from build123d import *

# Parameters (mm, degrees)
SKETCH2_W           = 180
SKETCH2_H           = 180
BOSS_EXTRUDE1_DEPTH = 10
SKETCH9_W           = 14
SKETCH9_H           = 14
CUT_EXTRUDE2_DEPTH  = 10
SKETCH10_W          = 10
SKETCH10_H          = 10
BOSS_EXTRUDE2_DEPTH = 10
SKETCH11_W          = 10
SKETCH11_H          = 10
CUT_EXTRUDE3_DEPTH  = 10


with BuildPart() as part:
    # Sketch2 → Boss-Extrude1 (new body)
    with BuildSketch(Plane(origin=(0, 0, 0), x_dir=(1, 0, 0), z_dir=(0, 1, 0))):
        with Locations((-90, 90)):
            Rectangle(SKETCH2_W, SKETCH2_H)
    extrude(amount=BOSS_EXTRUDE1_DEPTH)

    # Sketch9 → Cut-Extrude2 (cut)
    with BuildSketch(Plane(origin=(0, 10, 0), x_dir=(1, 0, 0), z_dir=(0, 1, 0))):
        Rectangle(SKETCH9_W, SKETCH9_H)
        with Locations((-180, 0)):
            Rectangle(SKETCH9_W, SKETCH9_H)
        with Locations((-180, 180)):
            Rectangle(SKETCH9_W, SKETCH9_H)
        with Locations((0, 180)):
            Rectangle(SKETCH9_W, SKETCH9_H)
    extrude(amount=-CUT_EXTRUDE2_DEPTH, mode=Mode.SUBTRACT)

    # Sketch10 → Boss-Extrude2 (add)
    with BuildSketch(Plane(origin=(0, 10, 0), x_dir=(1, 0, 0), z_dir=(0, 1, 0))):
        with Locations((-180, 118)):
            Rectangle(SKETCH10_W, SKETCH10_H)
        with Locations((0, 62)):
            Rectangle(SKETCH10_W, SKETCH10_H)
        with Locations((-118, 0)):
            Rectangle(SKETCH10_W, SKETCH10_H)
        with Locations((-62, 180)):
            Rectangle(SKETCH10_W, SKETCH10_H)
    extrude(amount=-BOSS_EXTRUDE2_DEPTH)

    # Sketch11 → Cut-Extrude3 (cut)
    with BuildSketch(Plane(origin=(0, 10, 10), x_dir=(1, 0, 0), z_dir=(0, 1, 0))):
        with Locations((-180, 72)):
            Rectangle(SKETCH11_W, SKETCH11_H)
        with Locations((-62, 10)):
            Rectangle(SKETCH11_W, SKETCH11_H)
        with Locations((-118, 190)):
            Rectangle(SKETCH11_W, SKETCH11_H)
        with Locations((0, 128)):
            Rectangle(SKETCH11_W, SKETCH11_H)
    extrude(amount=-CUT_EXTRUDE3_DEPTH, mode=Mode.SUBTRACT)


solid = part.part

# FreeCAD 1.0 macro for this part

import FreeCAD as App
import Part
import Sketcher

V = App.Vector

doc = App.newDocument("Part")
body = doc.addObject("PartDesign::Body", "Body")

# Sketch on XZ plane
sketch1 = body.newObject("Sketcher::SketchObject", "Sketch")
sketch1.AttachmentSupport = (doc.getObject("XZ_Plane"), [""])
sketch1.MapMode = "FlatFace"
sketch1.addGeometry(Part.LineSegment(V(-180, -180, 0), V(-180, 0, 0)), False)
sketch1.addGeometry(Part.LineSegment(V(-180, 0, 0), V(0, 0, 0)), False)
sketch1.addGeometry(Part.LineSegment(V(0, 0, 0), V(0, -180, 0)), False)
sketch1.addGeometry(Part.LineSegment(V(0, -180, 0), V(-180, -180, 0)), False)
sketch1.addConstraint(Sketcher.Constraint("Coincident", 0, 2, 1, 1))
sketch1.addConstraint(Sketcher.Constraint("Coincident", 1, 2, 2, 1))
sketch1.addConstraint(Sketcher.Constraint("Coincident", 2, 2, 3, 1))
sketch1.addConstraint(Sketcher.Constraint("Coincident", 3, 2, 0, 1))
sketch1.addConstraint(Sketcher.Constraint("Vertical", 0))
sketch1.addConstraint(Sketcher.Constraint("Horizontal", 1))
sketch1.addConstraint(Sketcher.Constraint("Vertical", 2))
sketch1.addConstraint(Sketcher.Constraint("Horizontal", 3))
sketch1.addConstraint(Sketcher.Constraint("Coincident", 1, 2, -1, 1))
sketch1.addConstraint(Sketcher.Constraint("Equal", 3, 0))
sketch1.addConstraint(Sketcher.Constraint("DistanceX", 1, 1, 1, 2, 180.0))
pad1 = body.newObject("PartDesign::Pad", "Pad")
pad1.Profile = sketch1
pad1.Length = 10
pad1.Reversed = True

# Sketch on XZ plane
sketch2 = body.newObject("Sketcher::SketchObject", "Sketch001")
sketch2.AttachmentSupport = (doc.getObject("XZ_Plane"), [""])
sketch2.MapMode = "FlatFace"
sketch2.AttachmentOffset = App.Placement(V(0, 0, -10), App.Rotation())
sketch2.addGeometry(Part.LineSegment(V(-7, -7, 0), V(-7, 7, 0)), False)
sketch2.addGeometry(Part.LineSegment(V(-7, 7, 0), V(7, 7, 0)), False)
sketch2.addGeometry(Part.LineSegment(V(7, 7, 0), V(7, -7, 0)), False)
sketch2.addGeometry(Part.LineSegment(V(7, -7, 0), V(-7, -7, 0)), False)
sketch2.addGeometry(Part.LineSegment(V(-187, -7, 0), V(-187, 7, 0)), False)
sketch2.addGeometry(Part.LineSegment(V(-187, 7, 0), V(-173, 7, 0)), False)
sketch2.addGeometry(Part.LineSegment(V(-173, 7, 0), V(-173, -7, 0)), False)
sketch2.addGeometry(Part.LineSegment(V(-173, -7, 0), V(-187, -7, 0)), False)
sketch2.addGeometry(Part.LineSegment(V(-187, -187, 0), V(-187, -173, 0)), False)
sketch2.addGeometry(Part.LineSegment(V(-187, -173, 0), V(-173, -173, 0)), False)
sketch2.addGeometry(Part.LineSegment(V(-173, -173, 0), V(-173, -187, 0)), False)
sketch2.addGeometry(Part.LineSegment(V(-173, -187, 0), V(-187, -187, 0)), False)
sketch2.addGeometry(Part.LineSegment(V(-7, -187, 0), V(-7, -173, 0)), False)
sketch2.addGeometry(Part.LineSegment(V(-7, -173, 0), V(7, -173, 0)), False)
sketch2.addGeometry(Part.LineSegment(V(7, -173, 0), V(7, -187, 0)), False)
sketch2.addGeometry(Part.LineSegment(V(7, -187, 0), V(-7, -187, 0)), False)
sketch2.addConstraint(Sketcher.Constraint("Coincident", 0, 2, 1, 1))
sketch2.addConstraint(Sketcher.Constraint("Coincident", 1, 2, 2, 1))
sketch2.addConstraint(Sketcher.Constraint("Coincident", 2, 2, 3, 1))
sketch2.addConstraint(Sketcher.Constraint("Coincident", 3, 2, 0, 1))
sketch2.addConstraint(Sketcher.Constraint("Coincident", 4, 2, 5, 1))
sketch2.addConstraint(Sketcher.Constraint("Coincident", 5, 2, 6, 1))
sketch2.addConstraint(Sketcher.Constraint("Coincident", 6, 2, 7, 1))
sketch2.addConstraint(Sketcher.Constraint("Coincident", 7, 2, 4, 1))
sketch2.addConstraint(Sketcher.Constraint("Coincident", 8, 2, 9, 1))
sketch2.addConstraint(Sketcher.Constraint("Coincident", 9, 2, 10, 1))
sketch2.addConstraint(Sketcher.Constraint("Coincident", 10, 2, 11, 1))
sketch2.addConstraint(Sketcher.Constraint("Coincident", 11, 2, 8, 1))
sketch2.addConstraint(Sketcher.Constraint("Coincident", 12, 2, 13, 1))
sketch2.addConstraint(Sketcher.Constraint("Coincident", 13, 2, 14, 1))
sketch2.addConstraint(Sketcher.Constraint("Coincident", 14, 2, 15, 1))
sketch2.addConstraint(Sketcher.Constraint("Coincident", 15, 2, 12, 1))
sketch2.addConstraint(Sketcher.Constraint("Vertical", 0))
sketch2.addConstraint(Sketcher.Constraint("Horizontal", 1))
sketch2.addConstraint(Sketcher.Constraint("Vertical", 2))
sketch2.addConstraint(Sketcher.Constraint("Horizontal", 3))
sketch2.addConstraint(Sketcher.Constraint("Vertical", 4))
sketch2.addConstraint(Sketcher.Constraint("Horizontal", 5))
sketch2.addConstraint(Sketcher.Constraint("Vertical", 6))
sketch2.addConstraint(Sketcher.Constraint("Horizontal", 7))
sketch2.addConstraint(Sketcher.Constraint("Vertical", 8))
sketch2.addConstraint(Sketcher.Constraint("Horizontal", 9))
sketch2.addConstraint(Sketcher.Constraint("Vertical", 10))
sketch2.addConstraint(Sketcher.Constraint("Horizontal", 11))
sketch2.addConstraint(Sketcher.Constraint("Vertical", 12))
sketch2.addConstraint(Sketcher.Constraint("Horizontal", 13))
sketch2.addConstraint(Sketcher.Constraint("Vertical", 14))
sketch2.addConstraint(Sketcher.Constraint("Horizontal", 15))
sketch2.addConstraint(Sketcher.Constraint("Symmetric", 0, 2, 2, 2, -1, 1))
sketch2.addConstraint(Sketcher.Constraint("Horizontal", 1, 2, 4, 2))
sketch2.addConstraint(Sketcher.Constraint("Horizontal", 3, 2, 6, 2))
sketch2.addConstraint(Sketcher.Constraint("Horizontal", 9, 2, 12, 2))
sketch2.addConstraint(Sketcher.Constraint("Horizontal", 11, 2, 14, 2))
sketch2.addConstraint(Sketcher.Constraint("Vertical", 7, 2, 8, 2))
sketch2.addConstraint(Sketcher.Constraint("Vertical", 6, 2, 9, 2))
sketch2.addConstraint(Sketcher.Constraint("Vertical", 3, 2, 12, 2))
sketch2.addConstraint(Sketcher.Constraint("Vertical", 2, 2, 13, 2))
sketch2.addConstraint(Sketcher.Constraint("Equal", 3, 5))
sketch2.addConstraint(Sketcher.Constraint("Equal", 15, 0))
sketch2.addConstraint(Sketcher.Constraint("Equal", 6, 8))
sketch2.addConstraint(Sketcher.Constraint("DistanceX", 1, 1, 1, 2, 14.0))
sketch2.addConstraint(Sketcher.Constraint("DistanceX", 4, 2, -1, 1, 187.0))
sketch2.addConstraint(Sketcher.Constraint("DistanceY", 8, 2, -1, 1, 173.0))
pocket1 = body.newObject("PartDesign::Pocket", "Pocket")
pocket1.Profile = sketch2
pocket1.Length = 10
pocket1.Reversed = True

# Sketch on XZ plane
sketch3 = body.newObject("Sketcher::SketchObject", "Sketch002")
sketch3.AttachmentSupport = (doc.getObject("XZ_Plane"), [""])
sketch3.MapMode = "FlatFace"
sketch3.AttachmentOffset = App.Placement(V(0, 0, -10), App.Rotation())
sketch3.addGeometry(Part.LineSegment(V(-185, -123, 0), V(-185, -113, 0)), False)
sketch3.addGeometry(Part.LineSegment(V(-185, -113, 0), V(-175, -113, 0)), False)
sketch3.addGeometry(Part.LineSegment(V(-175, -113, 0), V(-175, -123, 0)), False)
sketch3.addGeometry(Part.LineSegment(V(-175, -123, 0), V(-185, -123, 0)), False)
sketch3.addGeometry(Part.LineSegment(V(-5, -67, 0), V(-5, -57, 0)), False)
sketch3.addGeometry(Part.LineSegment(V(-5, -57, 0), V(5, -57, 0)), False)
sketch3.addGeometry(Part.LineSegment(V(5, -57, 0), V(5, -67, 0)), False)
sketch3.addGeometry(Part.LineSegment(V(5, -67, 0), V(-5, -67, 0)), False)
sketch3.addGeometry(Part.LineSegment(V(-123, -5, 0), V(-123, 5, 0)), False)
sketch3.addGeometry(Part.LineSegment(V(-123, 5, 0), V(-113, 5, 0)), False)
sketch3.addGeometry(Part.LineSegment(V(-113, 5, 0), V(-113, -5, 0)), False)
sketch3.addGeometry(Part.LineSegment(V(-113, -5, 0), V(-123, -5, 0)), False)
sketch3.addGeometry(Part.LineSegment(V(-67, -185, 0), V(-67, -175, 0)), False)
sketch3.addGeometry(Part.LineSegment(V(-67, -175, 0), V(-57, -175, 0)), False)
sketch3.addGeometry(Part.LineSegment(V(-57, -175, 0), V(-57, -185, 0)), False)
sketch3.addGeometry(Part.LineSegment(V(-57, -185, 0), V(-67, -185, 0)), False)
sketch3.addConstraint(Sketcher.Constraint("Coincident", 0, 2, 1, 1))
sketch3.addConstraint(Sketcher.Constraint("Coincident", 1, 2, 2, 1))
sketch3.addConstraint(Sketcher.Constraint("Coincident", 2, 2, 3, 1))
sketch3.addConstraint(Sketcher.Constraint("Coincident", 3, 2, 0, 1))
sketch3.addConstraint(Sketcher.Constraint("Coincident", 4, 2, 5, 1))
sketch3.addConstraint(Sketcher.Constraint("Coincident", 5, 2, 6, 1))
sketch3.addConstraint(Sketcher.Constraint("Coincident", 6, 2, 7, 1))
sketch3.addConstraint(Sketcher.Constraint("Coincident", 7, 2, 4, 1))
sketch3.addConstraint(Sketcher.Constraint("Coincident", 8, 2, 9, 1))
sketch3.addConstraint(Sketcher.Constraint("Coincident", 9, 2, 10, 1))
sketch3.addConstraint(Sketcher.Constraint("Coincident", 10, 2, 11, 1))
sketch3.addConstraint(Sketcher.Constraint("Coincident", 11, 2, 8, 1))
sketch3.addConstraint(Sketcher.Constraint("Coincident", 12, 2, 13, 1))
sketch3.addConstraint(Sketcher.Constraint("Coincident", 13, 2, 14, 1))
sketch3.addConstraint(Sketcher.Constraint("Coincident", 14, 2, 15, 1))
sketch3.addConstraint(Sketcher.Constraint("Coincident", 15, 2, 12, 1))
sketch3.addConstraint(Sketcher.Constraint("Vertical", 0))
sketch3.addConstraint(Sketcher.Constraint("Horizontal", 1))
sketch3.addConstraint(Sketcher.Constraint("Vertical", 2))
sketch3.addConstraint(Sketcher.Constraint("Horizontal", 3))
sketch3.addConstraint(Sketcher.Constraint("Vertical", 4))
sketch3.addConstraint(Sketcher.Constraint("Horizontal", 5))
sketch3.addConstraint(Sketcher.Constraint("Vertical", 6))
sketch3.addConstraint(Sketcher.Constraint("Horizontal", 7))
sketch3.addConstraint(Sketcher.Constraint("Vertical", 8))
sketch3.addConstraint(Sketcher.Constraint("Horizontal", 9))
sketch3.addConstraint(Sketcher.Constraint("Vertical", 10))
sketch3.addConstraint(Sketcher.Constraint("Horizontal", 11))
sketch3.addConstraint(Sketcher.Constraint("Vertical", 12))
sketch3.addConstraint(Sketcher.Constraint("Horizontal", 13))
sketch3.addConstraint(Sketcher.Constraint("Vertical", 14))
sketch3.addConstraint(Sketcher.Constraint("Horizontal", 15))
sketch3.addConstraint(Sketcher.Constraint("Equal", 3, 5))
sketch3.addConstraint(Sketcher.Constraint("Equal", 7, 9))
sketch3.addConstraint(Sketcher.Constraint("Equal", 11, 13))
sketch3.addConstraint(Sketcher.Constraint("Equal", 15, 0))
sketch3.addConstraint(Sketcher.Constraint("Equal", 2, 4))
sketch3.addConstraint(Sketcher.Constraint("Equal", 6, 8))
sketch3.addConstraint(Sketcher.Constraint("Equal", 10, 12))
sketch3.addConstraint(Sketcher.Constraint("DistanceX", 1, 1, 1, 2, 10.0))
sketch3.addConstraint(Sketcher.Constraint("DistanceX", 0, 2, -1, 1, 185.0))
sketch3.addConstraint(Sketcher.Constraint("DistanceY", 0, 2, -1, 1, 113.0))
sketch3.addConstraint(Sketcher.Constraint("DistanceX", 4, 2, -1, 1, 5.0))
sketch3.addConstraint(Sketcher.Constraint("DistanceY", 4, 2, -1, 1, 57.0))
sketch3.addConstraint(Sketcher.Constraint("DistanceX", 8, 2, -1, 1, 123.0))
sketch3.addConstraint(Sketcher.Constraint("DistanceY", -1, 1, 8, 2, 5.0))
sketch3.addConstraint(Sketcher.Constraint("DistanceX", 12, 2, -1, 1, 67.0))
sketch3.addConstraint(Sketcher.Constraint("DistanceY", 12, 2, -1, 1, 175.0))
pad2 = body.newObject("PartDesign::Pad", "Pad001")
pad2.Profile = sketch3
pad2.Length = 10

# Sketch on XZ plane
sketch4 = body.newObject("Sketcher::SketchObject", "Sketch003")
sketch4.AttachmentSupport = (doc.getObject("XZ_Plane"), [""])
sketch4.MapMode = "FlatFace"
sketch4.AttachmentOffset = App.Placement(V(0, 0, -10), App.Rotation())
sketch4.addGeometry(Part.LineSegment(V(-185, -67, 0), V(-185, -57, 0)), False)
sketch4.addGeometry(Part.LineSegment(V(-185, -57, 0), V(-175, -57, 0)), False)
sketch4.addGeometry(Part.LineSegment(V(-175, -57, 0), V(-175, -67, 0)), False)
sketch4.addGeometry(Part.LineSegment(V(-175, -67, 0), V(-185, -67, 0)), False)
sketch4.addGeometry(Part.LineSegment(V(-67, -5, 0), V(-67, 5, 0)), False)
sketch4.addGeometry(Part.LineSegment(V(-67, 5, 0), V(-57, 5, 0)), False)
sketch4.addGeometry(Part.LineSegment(V(-57, 5, 0), V(-57, -5, 0)), False)
sketch4.addGeometry(Part.LineSegment(V(-57, -5, 0), V(-67, -5, 0)), False)
sketch4.addGeometry(Part.LineSegment(V(-123, -185, 0), V(-123, -175, 0)), False)
sketch4.addGeometry(Part.LineSegment(V(-123, -175, 0), V(-113, -175, 0)), False)
sketch4.addGeometry(Part.LineSegment(V(-113, -175, 0), V(-113, -185, 0)), False)
sketch4.addGeometry(Part.LineSegment(V(-113, -185, 0), V(-123, -185, 0)), False)
sketch4.addGeometry(Part.LineSegment(V(-5, -123, 0), V(-5, -113, 0)), False)
sketch4.addGeometry(Part.LineSegment(V(-5, -113, 0), V(5, -113, 0)), False)
sketch4.addGeometry(Part.LineSegment(V(5, -113, 0), V(5, -123, 0)), False)
sketch4.addGeometry(Part.LineSegment(V(5, -123, 0), V(-5, -123, 0)), False)
sketch4.addConstraint(Sketcher.Constraint("Coincident", 0, 2, 1, 1))
sketch4.addConstraint(Sketcher.Constraint("Coincident", 1, 2, 2, 1))
sketch4.addConstraint(Sketcher.Constraint("Coincident", 2, 2, 3, 1))
sketch4.addConstraint(Sketcher.Constraint("Coincident", 3, 2, 0, 1))
sketch4.addConstraint(Sketcher.Constraint("Coincident", 4, 2, 5, 1))
sketch4.addConstraint(Sketcher.Constraint("Coincident", 5, 2, 6, 1))
sketch4.addConstraint(Sketcher.Constraint("Coincident", 6, 2, 7, 1))
sketch4.addConstraint(Sketcher.Constraint("Coincident", 7, 2, 4, 1))
sketch4.addConstraint(Sketcher.Constraint("Coincident", 8, 2, 9, 1))
sketch4.addConstraint(Sketcher.Constraint("Coincident", 9, 2, 10, 1))
sketch4.addConstraint(Sketcher.Constraint("Coincident", 10, 2, 11, 1))
sketch4.addConstraint(Sketcher.Constraint("Coincident", 11, 2, 8, 1))
sketch4.addConstraint(Sketcher.Constraint("Coincident", 12, 2, 13, 1))
sketch4.addConstraint(Sketcher.Constraint("Coincident", 13, 2, 14, 1))
sketch4.addConstraint(Sketcher.Constraint("Coincident", 14, 2, 15, 1))
sketch4.addConstraint(Sketcher.Constraint("Coincident", 15, 2, 12, 1))
sketch4.addConstraint(Sketcher.Constraint("Vertical", 0))
sketch4.addConstraint(Sketcher.Constraint("Horizontal", 1))
sketch4.addConstraint(Sketcher.Constraint("Vertical", 2))
sketch4.addConstraint(Sketcher.Constraint("Horizontal", 3))
sketch4.addConstraint(Sketcher.Constraint("Vertical", 4))
sketch4.addConstraint(Sketcher.Constraint("Horizontal", 5))
sketch4.addConstraint(Sketcher.Constraint("Vertical", 6))
sketch4.addConstraint(Sketcher.Constraint("Horizontal", 7))
sketch4.addConstraint(Sketcher.Constraint("Vertical", 8))
sketch4.addConstraint(Sketcher.Constraint("Horizontal", 9))
sketch4.addConstraint(Sketcher.Constraint("Vertical", 10))
sketch4.addConstraint(Sketcher.Constraint("Horizontal", 11))
sketch4.addConstraint(Sketcher.Constraint("Vertical", 12))
sketch4.addConstraint(Sketcher.Constraint("Horizontal", 13))
sketch4.addConstraint(Sketcher.Constraint("Vertical", 14))
sketch4.addConstraint(Sketcher.Constraint("Horizontal", 15))
sketch4.addConstraint(Sketcher.Constraint("Equal", 3, 5))
sketch4.addConstraint(Sketcher.Constraint("Equal", 7, 9))
sketch4.addConstraint(Sketcher.Constraint("Equal", 11, 13))
sketch4.addConstraint(Sketcher.Constraint("Equal", 15, 0))
sketch4.addConstraint(Sketcher.Constraint("Equal", 2, 4))
sketch4.addConstraint(Sketcher.Constraint("Equal", 6, 8))
sketch4.addConstraint(Sketcher.Constraint("Equal", 10, 12))
sketch4.addConstraint(Sketcher.Constraint("DistanceX", 1, 1, 1, 2, 10.0))
sketch4.addConstraint(Sketcher.Constraint("DistanceX", 0, 2, -1, 1, 185.0))
sketch4.addConstraint(Sketcher.Constraint("DistanceY", 0, 2, -1, 1, 57.0))
sketch4.addConstraint(Sketcher.Constraint("DistanceX", 4, 2, -1, 1, 67.0))
sketch4.addConstraint(Sketcher.Constraint("DistanceY", -1, 1, 4, 2, 5.0))
sketch4.addConstraint(Sketcher.Constraint("DistanceX", 8, 2, -1, 1, 123.0))
sketch4.addConstraint(Sketcher.Constraint("DistanceY", 8, 2, -1, 1, 175.0))
sketch4.addConstraint(Sketcher.Constraint("DistanceX", 12, 2, -1, 1, 5.0))
sketch4.addConstraint(Sketcher.Constraint("DistanceY", 12, 2, -1, 1, 113.0))
pocket2 = body.newObject("PartDesign::Pocket", "Pocket001")
pocket2.Profile = sketch4
pocket2.Length = 10
pocket2.Reversed = True

doc.recompute()
